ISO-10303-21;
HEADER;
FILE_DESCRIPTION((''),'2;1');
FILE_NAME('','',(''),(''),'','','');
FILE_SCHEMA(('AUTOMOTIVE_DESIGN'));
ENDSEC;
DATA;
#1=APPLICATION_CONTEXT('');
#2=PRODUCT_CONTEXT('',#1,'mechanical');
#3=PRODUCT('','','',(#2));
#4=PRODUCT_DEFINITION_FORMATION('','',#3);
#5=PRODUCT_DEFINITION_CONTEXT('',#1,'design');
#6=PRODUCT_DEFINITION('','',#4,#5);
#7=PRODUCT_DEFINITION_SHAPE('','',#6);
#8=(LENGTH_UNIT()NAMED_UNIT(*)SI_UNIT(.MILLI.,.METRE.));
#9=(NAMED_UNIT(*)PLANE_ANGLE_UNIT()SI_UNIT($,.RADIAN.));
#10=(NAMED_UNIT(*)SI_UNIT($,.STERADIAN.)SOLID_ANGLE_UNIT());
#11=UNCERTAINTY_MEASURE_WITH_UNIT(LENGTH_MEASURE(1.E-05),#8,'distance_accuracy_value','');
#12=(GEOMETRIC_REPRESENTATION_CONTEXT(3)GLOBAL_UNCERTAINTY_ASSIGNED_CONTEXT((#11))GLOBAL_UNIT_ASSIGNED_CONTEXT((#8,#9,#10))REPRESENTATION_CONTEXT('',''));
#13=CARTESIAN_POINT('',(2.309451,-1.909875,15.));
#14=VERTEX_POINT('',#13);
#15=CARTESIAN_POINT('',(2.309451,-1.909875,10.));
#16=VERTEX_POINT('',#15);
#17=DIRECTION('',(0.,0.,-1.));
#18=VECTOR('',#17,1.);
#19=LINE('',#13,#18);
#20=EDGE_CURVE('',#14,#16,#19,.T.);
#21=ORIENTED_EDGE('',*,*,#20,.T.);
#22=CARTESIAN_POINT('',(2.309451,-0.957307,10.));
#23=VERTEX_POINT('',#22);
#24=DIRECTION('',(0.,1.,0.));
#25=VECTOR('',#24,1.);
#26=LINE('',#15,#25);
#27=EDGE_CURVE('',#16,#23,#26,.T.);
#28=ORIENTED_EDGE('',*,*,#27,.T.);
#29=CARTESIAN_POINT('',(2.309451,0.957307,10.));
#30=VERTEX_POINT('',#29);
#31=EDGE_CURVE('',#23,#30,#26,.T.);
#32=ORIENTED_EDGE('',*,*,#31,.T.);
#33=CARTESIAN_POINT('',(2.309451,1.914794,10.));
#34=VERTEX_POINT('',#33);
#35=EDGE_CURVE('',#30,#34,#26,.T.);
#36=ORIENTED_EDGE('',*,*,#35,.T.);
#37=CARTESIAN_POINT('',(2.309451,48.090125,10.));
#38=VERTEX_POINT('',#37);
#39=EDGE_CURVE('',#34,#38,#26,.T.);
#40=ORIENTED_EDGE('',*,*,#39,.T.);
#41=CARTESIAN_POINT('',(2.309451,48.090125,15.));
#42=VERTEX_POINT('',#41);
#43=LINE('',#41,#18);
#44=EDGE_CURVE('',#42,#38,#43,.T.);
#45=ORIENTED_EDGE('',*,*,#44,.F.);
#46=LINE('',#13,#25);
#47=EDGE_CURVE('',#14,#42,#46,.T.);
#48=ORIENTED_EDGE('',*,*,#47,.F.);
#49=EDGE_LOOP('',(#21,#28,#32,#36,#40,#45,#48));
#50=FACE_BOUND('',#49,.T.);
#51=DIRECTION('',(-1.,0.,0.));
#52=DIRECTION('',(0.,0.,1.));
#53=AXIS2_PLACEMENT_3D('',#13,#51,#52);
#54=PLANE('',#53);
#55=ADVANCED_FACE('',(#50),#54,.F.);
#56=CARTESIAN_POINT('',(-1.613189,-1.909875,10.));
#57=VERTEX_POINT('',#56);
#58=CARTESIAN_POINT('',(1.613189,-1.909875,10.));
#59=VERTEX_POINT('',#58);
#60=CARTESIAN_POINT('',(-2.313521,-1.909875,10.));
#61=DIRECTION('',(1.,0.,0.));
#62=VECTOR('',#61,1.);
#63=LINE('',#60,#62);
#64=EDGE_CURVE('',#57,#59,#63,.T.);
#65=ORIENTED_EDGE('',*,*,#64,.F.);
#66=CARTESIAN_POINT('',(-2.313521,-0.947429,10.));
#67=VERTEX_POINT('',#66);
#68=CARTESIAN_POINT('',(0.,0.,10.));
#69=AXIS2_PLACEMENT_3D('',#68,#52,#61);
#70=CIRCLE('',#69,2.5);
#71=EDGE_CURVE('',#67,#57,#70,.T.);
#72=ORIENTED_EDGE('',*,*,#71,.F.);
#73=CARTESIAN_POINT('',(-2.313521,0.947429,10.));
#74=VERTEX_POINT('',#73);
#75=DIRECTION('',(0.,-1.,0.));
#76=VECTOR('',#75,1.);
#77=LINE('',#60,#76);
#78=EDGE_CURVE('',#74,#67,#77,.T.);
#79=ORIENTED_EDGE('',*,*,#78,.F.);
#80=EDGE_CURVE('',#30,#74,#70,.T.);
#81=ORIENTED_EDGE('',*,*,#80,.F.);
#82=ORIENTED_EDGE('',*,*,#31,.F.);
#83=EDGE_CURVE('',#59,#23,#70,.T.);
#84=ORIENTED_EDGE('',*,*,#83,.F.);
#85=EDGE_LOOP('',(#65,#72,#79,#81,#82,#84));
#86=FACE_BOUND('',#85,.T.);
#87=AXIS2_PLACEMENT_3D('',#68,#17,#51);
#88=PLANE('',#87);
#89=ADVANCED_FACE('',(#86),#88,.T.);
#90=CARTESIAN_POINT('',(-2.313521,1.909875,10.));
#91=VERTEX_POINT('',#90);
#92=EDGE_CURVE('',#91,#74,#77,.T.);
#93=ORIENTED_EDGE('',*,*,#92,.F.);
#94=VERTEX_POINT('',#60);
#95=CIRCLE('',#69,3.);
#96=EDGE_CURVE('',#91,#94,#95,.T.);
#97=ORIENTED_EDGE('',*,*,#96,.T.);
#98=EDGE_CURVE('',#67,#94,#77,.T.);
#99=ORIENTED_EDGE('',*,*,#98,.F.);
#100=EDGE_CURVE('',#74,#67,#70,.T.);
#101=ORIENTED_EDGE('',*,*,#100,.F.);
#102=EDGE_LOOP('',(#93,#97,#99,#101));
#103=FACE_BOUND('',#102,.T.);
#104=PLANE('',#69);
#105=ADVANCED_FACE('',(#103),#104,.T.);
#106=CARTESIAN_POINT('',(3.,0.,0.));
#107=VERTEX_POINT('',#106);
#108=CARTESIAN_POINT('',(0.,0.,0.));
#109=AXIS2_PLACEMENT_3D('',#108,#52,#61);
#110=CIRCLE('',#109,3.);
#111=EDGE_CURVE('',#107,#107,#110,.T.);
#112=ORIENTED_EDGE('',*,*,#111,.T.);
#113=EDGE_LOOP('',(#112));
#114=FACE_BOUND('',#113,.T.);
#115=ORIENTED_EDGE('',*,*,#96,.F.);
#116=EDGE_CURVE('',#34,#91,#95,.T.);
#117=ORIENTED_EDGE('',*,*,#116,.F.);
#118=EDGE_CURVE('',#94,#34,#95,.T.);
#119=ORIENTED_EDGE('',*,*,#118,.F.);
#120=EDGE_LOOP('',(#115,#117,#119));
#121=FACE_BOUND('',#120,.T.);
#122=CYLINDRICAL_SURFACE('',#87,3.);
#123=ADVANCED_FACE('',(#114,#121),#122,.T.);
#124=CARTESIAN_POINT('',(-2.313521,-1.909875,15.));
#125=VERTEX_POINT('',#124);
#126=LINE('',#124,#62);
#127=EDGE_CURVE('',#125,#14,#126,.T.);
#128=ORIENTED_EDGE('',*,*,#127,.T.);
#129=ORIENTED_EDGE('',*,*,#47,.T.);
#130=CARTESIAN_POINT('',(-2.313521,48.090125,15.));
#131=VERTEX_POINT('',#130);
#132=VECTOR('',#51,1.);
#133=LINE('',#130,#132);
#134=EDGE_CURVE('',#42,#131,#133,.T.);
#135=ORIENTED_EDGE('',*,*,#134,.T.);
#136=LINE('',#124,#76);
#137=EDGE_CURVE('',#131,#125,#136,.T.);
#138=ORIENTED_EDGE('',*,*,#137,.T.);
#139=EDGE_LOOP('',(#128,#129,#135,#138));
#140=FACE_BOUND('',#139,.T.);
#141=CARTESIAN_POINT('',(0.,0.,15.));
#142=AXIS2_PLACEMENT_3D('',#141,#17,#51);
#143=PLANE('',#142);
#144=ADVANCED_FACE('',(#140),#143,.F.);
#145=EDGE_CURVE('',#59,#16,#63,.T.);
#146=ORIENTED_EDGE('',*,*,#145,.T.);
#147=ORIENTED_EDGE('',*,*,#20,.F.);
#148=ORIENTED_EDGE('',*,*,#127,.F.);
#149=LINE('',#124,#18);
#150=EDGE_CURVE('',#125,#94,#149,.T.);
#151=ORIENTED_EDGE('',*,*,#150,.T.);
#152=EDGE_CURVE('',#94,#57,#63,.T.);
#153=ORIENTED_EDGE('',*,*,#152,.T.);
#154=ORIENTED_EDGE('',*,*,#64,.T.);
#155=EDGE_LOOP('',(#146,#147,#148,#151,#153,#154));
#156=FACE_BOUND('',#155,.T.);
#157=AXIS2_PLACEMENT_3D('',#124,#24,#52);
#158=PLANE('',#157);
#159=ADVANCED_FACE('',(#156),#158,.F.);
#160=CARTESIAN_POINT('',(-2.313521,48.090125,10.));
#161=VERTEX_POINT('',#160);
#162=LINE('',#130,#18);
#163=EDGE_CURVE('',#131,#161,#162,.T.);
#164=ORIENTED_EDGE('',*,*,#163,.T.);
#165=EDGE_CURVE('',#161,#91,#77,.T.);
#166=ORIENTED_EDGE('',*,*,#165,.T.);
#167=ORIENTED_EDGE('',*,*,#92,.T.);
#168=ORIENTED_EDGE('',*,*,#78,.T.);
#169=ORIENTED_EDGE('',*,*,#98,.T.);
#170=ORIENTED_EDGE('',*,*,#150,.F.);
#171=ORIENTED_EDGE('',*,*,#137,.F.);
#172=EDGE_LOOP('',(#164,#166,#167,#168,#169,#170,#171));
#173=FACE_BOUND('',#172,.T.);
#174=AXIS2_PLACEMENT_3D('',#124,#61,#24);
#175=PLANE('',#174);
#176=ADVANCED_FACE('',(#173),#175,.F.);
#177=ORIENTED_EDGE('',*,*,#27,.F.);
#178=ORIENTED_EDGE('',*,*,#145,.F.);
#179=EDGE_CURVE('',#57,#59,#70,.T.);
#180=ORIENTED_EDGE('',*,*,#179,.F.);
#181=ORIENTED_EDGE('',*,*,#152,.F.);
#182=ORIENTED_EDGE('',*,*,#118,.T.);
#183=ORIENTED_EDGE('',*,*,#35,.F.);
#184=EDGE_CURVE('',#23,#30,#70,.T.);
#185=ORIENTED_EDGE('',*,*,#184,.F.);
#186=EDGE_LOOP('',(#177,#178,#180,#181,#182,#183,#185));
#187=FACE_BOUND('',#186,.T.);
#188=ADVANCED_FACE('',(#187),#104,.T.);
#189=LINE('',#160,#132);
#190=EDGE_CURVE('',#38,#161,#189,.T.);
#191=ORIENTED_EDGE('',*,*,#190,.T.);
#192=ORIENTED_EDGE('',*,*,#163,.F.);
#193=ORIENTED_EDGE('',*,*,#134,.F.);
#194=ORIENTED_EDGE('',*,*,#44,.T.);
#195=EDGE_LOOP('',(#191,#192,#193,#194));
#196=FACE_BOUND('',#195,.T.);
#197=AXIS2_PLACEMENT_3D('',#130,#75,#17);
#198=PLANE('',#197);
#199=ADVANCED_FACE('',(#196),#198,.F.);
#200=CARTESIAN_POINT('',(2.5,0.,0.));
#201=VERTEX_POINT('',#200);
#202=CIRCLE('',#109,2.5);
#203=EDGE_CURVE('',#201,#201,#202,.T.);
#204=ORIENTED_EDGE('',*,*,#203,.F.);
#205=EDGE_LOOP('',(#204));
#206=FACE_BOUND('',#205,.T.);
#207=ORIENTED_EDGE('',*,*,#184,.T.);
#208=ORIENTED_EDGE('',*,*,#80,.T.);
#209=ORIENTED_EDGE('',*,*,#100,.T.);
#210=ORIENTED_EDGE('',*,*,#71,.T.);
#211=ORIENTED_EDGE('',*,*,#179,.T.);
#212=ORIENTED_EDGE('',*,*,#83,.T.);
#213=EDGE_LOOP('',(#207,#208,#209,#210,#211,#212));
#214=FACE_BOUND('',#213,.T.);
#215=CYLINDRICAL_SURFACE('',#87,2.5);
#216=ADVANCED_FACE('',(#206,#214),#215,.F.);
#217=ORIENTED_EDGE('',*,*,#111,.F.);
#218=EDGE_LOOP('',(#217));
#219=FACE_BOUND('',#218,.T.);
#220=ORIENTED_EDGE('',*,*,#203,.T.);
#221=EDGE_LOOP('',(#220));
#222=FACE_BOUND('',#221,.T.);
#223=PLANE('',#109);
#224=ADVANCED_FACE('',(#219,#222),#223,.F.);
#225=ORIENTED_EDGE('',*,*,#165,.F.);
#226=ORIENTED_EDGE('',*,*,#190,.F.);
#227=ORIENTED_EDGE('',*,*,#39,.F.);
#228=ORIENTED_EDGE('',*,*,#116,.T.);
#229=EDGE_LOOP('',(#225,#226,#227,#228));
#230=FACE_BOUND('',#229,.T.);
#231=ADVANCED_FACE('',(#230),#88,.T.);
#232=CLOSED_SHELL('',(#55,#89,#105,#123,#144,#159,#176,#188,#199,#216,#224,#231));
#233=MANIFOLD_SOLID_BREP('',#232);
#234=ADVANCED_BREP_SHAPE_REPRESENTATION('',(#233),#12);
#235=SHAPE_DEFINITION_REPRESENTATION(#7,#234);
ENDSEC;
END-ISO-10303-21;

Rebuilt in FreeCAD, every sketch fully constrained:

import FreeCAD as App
import Part
import Sketcher
from FreeCAD import Vector
Q = App.Units.Quantity

doc = App.newDocument("Part")
body = doc.addObject("PartDesign::Body", "Body")

sketch1 = doc.addObject("Sketcher::SketchObject", "Sketch")
body.addObject(sketch1)
sketch1.AttachmentSupport = (doc.XY_Plane, [""])
sketch1.MapMode = "FlatFace"
sketch1.addGeometry(Part.Circle(Vector(0, 0, 0), Vector(0, 0, 1), 3), False)
sketch1.addGeometry(Part.Circle(Vector(0, 0, 0), Vector(0, 0, 1), 2.5), False)
sketch1.addConstraint(Sketcher.Constraint("Coincident", 0, 3, -1, 1))
sketch1.addConstraint(Sketcher.Constraint("Coincident", 1, 3, -1, 1))
sketch1.addConstraint(Sketcher.Constraint("Diameter", 0, Q("6 mm")))
sketch1.addConstraint(Sketcher.Constraint("Diameter", 1, Q("5 mm")))
pad1 = doc.addObject("PartDesign::Pad", "Pad")
body.addObject(pad1)
pad1.Profile = sketch1
pad1.Length = 10

sketch2 = doc.addObject("Sketcher::SketchObject", "Sketch001")
body.addObject(sketch2)
sketch2.AttachmentSupport = (doc.XY_Plane, [""])
sketch2.MapMode = "FlatFace"
sketch2.AttachmentOffset = App.Placement(Vector(0, 0, 10), App.Rotation())
sketch2.addGeometry(Part.LineSegment(Vector(-2.313521, 48.090125, 0), Vector(-2.313521, -1.909875, 0)), False)
sketch2.addGeometry(Part.LineSegment(Vector(-2.313521, -1.909875, 0), Vector(2.309451, -1.909875, 0)), False)
sketch2.addGeometry(Part.LineSegment(Vector(2.309451, -1.909875, 0), Vector(2.309451, 48.090125, 0)), False)
sketch2.addGeometry(Part.LineSegment(Vector(2.309451, 48.090125, 0), Vector(-2.313521, 48.090125, 0)), False)
sketch2.addConstraint(Sketcher.Constraint("Coincident", 0, 2, 1, 1))
sketch2.addConstraint(Sketcher.Constraint("Coincident", 1, 2, 2, 1))
sketch2.addConstraint(Sketcher.Constraint("Coincident", 2, 2, 3, 1))
sketch2.addConstraint(Sketcher.Constraint("Coincident", 3, 2, 0, 1))
sketch2.addConstraint(Sketcher.Constraint("Vertical", 0))
sketch2.addConstraint(Sketcher.Constraint("Horizontal", 1))
sketch2.addConstraint(Sketcher.Constraint("Vertical", 2))
sketch2.addConstraint(Sketcher.Constraint("Horizontal", 3))
sketch2.addConstraint(Sketcher.Constraint("DistanceY", 0, 2, 0, 1, Q("50 mm")))
sketch2.addConstraint(Sketcher.Constraint("DistanceX", 1, 1, 1, 2, Q("4.622972 mm")))
sketch2.addConstraint(Sketcher.Constraint("DistanceX", 0, 2, -1, 1, Q("2.313521 mm")))
sketch2.addConstraint(Sketcher.Constraint("DistanceY", 0, 2, -1, 1, Q("1.909875 mm")))
pad2 = doc.addObject("PartDesign::Pad", "Pad001")
body.addObject(pad2)
pad2.Profile = sketch2
pad2.Length = 5

doc.recompute()
